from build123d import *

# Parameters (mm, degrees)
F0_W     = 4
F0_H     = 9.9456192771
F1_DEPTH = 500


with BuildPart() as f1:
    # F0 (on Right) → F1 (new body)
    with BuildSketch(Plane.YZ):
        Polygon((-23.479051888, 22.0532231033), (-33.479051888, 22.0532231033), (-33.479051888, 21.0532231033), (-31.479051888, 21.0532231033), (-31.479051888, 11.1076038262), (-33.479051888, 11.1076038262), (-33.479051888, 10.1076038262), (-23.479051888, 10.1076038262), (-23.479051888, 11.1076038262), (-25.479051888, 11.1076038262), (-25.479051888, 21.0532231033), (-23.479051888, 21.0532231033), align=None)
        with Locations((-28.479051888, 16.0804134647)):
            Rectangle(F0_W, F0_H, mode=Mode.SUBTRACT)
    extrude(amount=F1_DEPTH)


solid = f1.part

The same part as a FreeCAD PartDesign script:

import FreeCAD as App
import Part
import Sketcher
from FreeCAD import Vector


def add_polygon(sketch, points):
    """Adds a closed chain of lines whose ends are joined by coincident constraints."""
    first, n = sketch.GeometryCount, len(points)
    for a, b in zip(points, points[1:] + points[:1]):
        sketch.addGeometry(Part.LineSegment(App.Vector(*a, 0), App.Vector(*b, 0)), False)
    for i in range(n):
        sketch.addConstraint(Sketcher.Constraint("Coincident", first + i, 2, first + (i + 1) % n, 1))

doc = App.newDocument("Part")
body = doc.addObject("PartDesign::Body", "Body")

# Sketch on YZ plane
sketch1 = body.newObject("Sketcher::SketchObject", "Sketch")
sketch1.AttachmentSupport = (doc.getObject("YZ_Plane"), [""])
sketch1.MapMode = "FlatFace"
add_polygon(sketch1, [(-23.5, 22.1), (-33.5, 22.1), (-33.5, 21.1), (-31.5, 21.1), (-31.5, 11.1), (-33.5, 11.1), (-33.5, 10.1), (-23.5, 10.1), (-23.5, 11.1), (-25.5, 11.1), (-25.5, 21.1), (-23.5, 21.1)])  # lines 0-11
add_polygon(sketch1, [(-26.5, 11.1), (-30.5, 11.1), (-30.5, 21.1), (-26.5, 21.1)])  # lines 12-15
sketch1.addConstraint([
    Sketcher.Constraint("Horizontal", 0),
    Sketcher.Constraint("Vertical", 1),
    Sketcher.Constraint("Horizontal", 2),
    Sketcher.Constraint("Vertical", 3),
    Sketcher.Constraint("Horizontal", 4),
    Sketcher.Constraint("Vertical", 5),
    Sketcher.Constraint("Horizontal", 6),
    Sketcher.Constraint("Vertical", 7),
    Sketcher.Constraint("Horizontal", 8),
    Sketcher.Constraint("Vertical", 9),
    Sketcher.Constraint("Horizontal", 10),
    Sketcher.Constraint("Vertical", 11),
    Sketcher.Constraint("Horizontal", 12),
    Sketcher.Constraint("Vertical", 13),
    Sketcher.Constraint("Horizontal", 14),
    Sketcher.Constraint("Vertical", 15),
    Sketcher.Constraint("Horizontal", 4, 2, 7, 2),
    Sketcher.Constraint("Horizontal", 2, 2, 9, 2),
    Sketcher.Constraint("Horizontal", 8, 2, 12, 2),
    Sketcher.Constraint("Horizontal", 10, 2, 13, 2),
    Sketcher.Constraint("Vertical", 1, 2, 4, 2),
    Sketcher.Constraint("Vertical", 7, 2, 10, 2),
    Sketcher.Constraint("Equal", 4, 8),
    Sketcher.Constraint("Equal", 1, 5),
    Sketcher.Constraint("DistanceX", 0, 2, 0, 1, 10.0),
    Sketcher.Constraint("DistanceX", 2, 1, 2, 2, 2.0),
    Sketcher.Constraint("DistanceX", 12, 2, 12, 1, 4.0),
    Sketcher.Constraint("DistanceY", 1, 2, 1, 1, 1.0),
    Sketcher.Constraint("DistanceX", 3, 2, 12, 2, 1.0),
    Sketcher.Constraint("DistanceY", 3, 2, 3, 1, 9.945619),
    Sketcher.Constraint("DistanceX", 0, 2, -1, 1, 33.479052),
    Sketcher.Constraint("DistanceY", -1, 1, 0, 2, 22.053223),
])
pad1 = body.newObject("PartDesign::Pad", "Pad")
pad1.Profile = sketch1
pad1.Length = 500

doc.recompute()
